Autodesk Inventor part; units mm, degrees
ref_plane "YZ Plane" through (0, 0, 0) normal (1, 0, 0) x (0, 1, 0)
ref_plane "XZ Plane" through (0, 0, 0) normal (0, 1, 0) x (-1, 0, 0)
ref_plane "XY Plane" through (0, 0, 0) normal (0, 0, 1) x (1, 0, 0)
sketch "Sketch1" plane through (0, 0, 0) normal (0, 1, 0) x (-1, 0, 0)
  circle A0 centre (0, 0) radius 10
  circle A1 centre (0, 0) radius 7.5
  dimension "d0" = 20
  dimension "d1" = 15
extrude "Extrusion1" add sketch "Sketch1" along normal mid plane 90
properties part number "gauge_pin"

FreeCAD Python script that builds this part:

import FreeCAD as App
import Part
import Sketcher
Q = App.Units.Quantity

doc = App.newDocument("Part")
body = doc.addObject("PartDesign::Body", "Body")

sketch1 = body.newObject("Sketcher::SketchObject", "Sketch")
sketch1.AttachmentSupport = (doc.getObject("XZ_Plane"), [""])
sketch1.MapMode = "FlatFace"
sketch1.addGeometry([
    Part.Circle(App.Vector(0, 0, 0), App.Vector(0, 0, 1), 10),
    Part.Circle(App.Vector(0, 0, 0), App.Vector(0, 0, 1), 8),
], False)
sketch1.addConstraint([
    Sketcher.Constraint("Coincident", 0, 3, -1, 1),
    Sketcher.Constraint("Coincident", 1, 3, -1, 1),
    Sketcher.Constraint("Diameter", 0, Q("20 mm")),
    Sketcher.Constraint("Diameter", 1, Q("15 mm")),
])
pad1 = body.newObject("PartDesign::Pad", "Pad")
pad1.Profile = sketch1
pad1.Length = 90
pad1.Midplane = True

doc.recompute()
